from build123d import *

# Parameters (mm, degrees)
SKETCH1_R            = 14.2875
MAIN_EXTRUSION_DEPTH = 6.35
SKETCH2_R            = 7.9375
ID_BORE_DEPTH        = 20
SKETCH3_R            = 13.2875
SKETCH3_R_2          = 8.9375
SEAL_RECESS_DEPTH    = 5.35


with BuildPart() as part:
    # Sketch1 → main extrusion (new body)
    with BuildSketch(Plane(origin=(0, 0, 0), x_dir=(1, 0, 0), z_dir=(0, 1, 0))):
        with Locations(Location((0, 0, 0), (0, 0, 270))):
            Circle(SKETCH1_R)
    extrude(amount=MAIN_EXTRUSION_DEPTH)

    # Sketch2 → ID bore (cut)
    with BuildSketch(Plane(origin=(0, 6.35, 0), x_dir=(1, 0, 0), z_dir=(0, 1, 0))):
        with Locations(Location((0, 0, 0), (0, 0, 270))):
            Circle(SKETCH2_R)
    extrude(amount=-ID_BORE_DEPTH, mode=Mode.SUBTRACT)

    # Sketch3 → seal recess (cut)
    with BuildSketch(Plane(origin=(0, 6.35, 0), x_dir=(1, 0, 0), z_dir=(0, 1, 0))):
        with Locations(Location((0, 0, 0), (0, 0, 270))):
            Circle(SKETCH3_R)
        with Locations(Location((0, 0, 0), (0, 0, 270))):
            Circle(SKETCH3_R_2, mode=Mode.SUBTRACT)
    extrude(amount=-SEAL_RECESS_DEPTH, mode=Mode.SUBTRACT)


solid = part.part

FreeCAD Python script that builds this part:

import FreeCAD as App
import Part
import Sketcher
Q = App.Units.Quantity

doc = App.newDocument("Part")
body = doc.addObject("PartDesign::Body", "Body")

sketch1 = body.newObject("Sketcher::SketchObject", "Sketch")
sketch1.AttachmentSupport = (doc.getObject("XZ_Plane"), [""])
sketch1.MapMode = "FlatFace"
sketch1.addGeometry(Part.Circle(App.Vector(0, 0, 0), App.Vector(0, 0, 1), 14.2875), False)
sketch1.addConstraint(Sketcher.Constraint("Coincident", 0, 3, -1, 1))
sketch1.addConstraint(Sketcher.Constraint("Diameter", 0, Q("1.125 in")))
pad1 = body.newObject("PartDesign::Pad", "Pad")
pad1.Profile = sketch1
pad1.Length = Q("0.25 in")
pad1.Reversed = True

sketch2 = body.newObject("Sketcher::SketchObject", "Sketch001")
sketch2.AttachmentSupport = (doc.getObject("XZ_Plane"), [""])
sketch2.MapMode = "FlatFace"
sketch2.AttachmentOffset = App.Placement(App.Vector(0, 0, -0.25 * 25.4), App.Rotation())
sketch2.addGeometry(Part.Circle(App.Vector(0, 0, 0), App.Vector(0, 0, 1), 7.9375), False)
sketch2.addConstraint(Sketcher.Constraint("Coincident", 0, 3, -1, 1))
sketch2.addConstraint(Sketcher.Constraint("Diameter", 0, Q("0.625 in")))
pocket1 = body.newObject("PartDesign::Pocket", "Pocket")
pocket1.Profile = sketch2
pocket1.Length = 20
pocket1.Reversed = True

sketch3 = body.newObject("Sketcher::SketchObject", "Sketch002")
sketch3.AttachmentSupport = (doc.getObject("XZ_Plane"), [""])
sketch3.MapMode = "FlatFace"
sketch3.AttachmentOffset = App.Placement(App.Vector(0, 0, -0.25 * 25.4), App.Rotation())
sketch3.addGeometry(Part.Circle(App.Vector(0, 0, 0), App.Vector(0, 0, 1), 13.2875), False)
sketch3.addGeometry(Part.Circle(App.Vector(0, 0, 0), App.Vector(0, 0, 1), 8.9375), False)
sketch3.addConstraint(Sketcher.Constraint("Coincident", 0, 3, -1, 1))
sketch3.addConstraint(Sketcher.Constraint("Coincident", 1, 3, -1, 1))
sketch3.addConstraint(Sketcher.Constraint("Diameter", 0, Q("26.575 mm")))
sketch3.addConstraint(Sketcher.Constraint("Diameter", 1, Q("17.875 mm")))
pocket2 = body.newObject("PartDesign::Pocket", "Pocket001")
pocket2.Profile = sketch3
pocket2.Length = 5.35
pocket2.Reversed = True

doc.recompute()
